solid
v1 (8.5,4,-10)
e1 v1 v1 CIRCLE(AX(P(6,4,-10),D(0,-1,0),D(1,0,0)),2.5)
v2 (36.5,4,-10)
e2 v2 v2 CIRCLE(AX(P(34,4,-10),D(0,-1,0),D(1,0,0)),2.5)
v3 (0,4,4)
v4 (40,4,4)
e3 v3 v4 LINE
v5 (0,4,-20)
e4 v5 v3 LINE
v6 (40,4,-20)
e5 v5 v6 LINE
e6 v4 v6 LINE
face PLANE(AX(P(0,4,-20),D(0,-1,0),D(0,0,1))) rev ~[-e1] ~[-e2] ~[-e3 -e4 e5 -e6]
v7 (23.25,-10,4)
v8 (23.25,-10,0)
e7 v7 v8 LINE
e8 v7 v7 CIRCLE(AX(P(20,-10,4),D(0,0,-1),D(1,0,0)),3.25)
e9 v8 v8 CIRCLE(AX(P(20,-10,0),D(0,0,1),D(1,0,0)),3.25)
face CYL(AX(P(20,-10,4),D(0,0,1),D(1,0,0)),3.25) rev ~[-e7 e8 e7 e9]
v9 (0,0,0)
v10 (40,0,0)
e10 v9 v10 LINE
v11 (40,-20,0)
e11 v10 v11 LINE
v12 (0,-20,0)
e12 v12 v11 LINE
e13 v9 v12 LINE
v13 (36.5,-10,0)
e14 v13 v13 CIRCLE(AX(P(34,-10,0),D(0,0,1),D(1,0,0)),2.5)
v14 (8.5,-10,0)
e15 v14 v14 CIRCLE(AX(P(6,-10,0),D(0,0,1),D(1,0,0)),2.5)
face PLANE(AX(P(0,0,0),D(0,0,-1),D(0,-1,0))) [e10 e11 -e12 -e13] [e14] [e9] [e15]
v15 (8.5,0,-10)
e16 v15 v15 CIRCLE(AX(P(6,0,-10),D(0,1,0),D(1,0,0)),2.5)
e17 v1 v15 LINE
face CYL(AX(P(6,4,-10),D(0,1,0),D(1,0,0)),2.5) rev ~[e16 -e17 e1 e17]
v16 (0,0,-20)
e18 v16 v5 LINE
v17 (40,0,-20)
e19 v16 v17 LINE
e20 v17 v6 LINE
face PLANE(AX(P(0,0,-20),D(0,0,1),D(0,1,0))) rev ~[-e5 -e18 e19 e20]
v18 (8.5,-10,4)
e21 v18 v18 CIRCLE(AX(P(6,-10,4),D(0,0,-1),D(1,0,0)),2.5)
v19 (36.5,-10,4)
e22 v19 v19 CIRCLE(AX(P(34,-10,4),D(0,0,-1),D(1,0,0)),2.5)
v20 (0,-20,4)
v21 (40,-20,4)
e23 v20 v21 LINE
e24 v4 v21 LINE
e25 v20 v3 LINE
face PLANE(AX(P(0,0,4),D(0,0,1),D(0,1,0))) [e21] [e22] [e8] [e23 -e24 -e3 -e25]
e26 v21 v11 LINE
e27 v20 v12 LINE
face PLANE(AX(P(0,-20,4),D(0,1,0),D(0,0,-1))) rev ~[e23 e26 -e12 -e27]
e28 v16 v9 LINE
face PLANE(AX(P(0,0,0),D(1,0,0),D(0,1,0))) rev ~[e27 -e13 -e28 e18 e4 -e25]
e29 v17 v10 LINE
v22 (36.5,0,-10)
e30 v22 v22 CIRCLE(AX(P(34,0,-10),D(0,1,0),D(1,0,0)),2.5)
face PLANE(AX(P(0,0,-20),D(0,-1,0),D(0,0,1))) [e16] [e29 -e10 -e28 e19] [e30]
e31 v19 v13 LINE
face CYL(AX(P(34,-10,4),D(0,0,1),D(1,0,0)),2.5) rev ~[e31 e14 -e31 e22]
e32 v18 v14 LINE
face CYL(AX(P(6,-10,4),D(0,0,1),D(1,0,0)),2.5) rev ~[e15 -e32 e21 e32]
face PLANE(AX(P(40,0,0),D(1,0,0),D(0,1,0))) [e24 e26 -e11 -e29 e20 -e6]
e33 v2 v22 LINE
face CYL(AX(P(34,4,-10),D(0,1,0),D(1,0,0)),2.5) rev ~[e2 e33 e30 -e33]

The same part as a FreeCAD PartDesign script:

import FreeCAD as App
import Part
import Sketcher

V = App.Vector
Q = App.Units.Quantity


def add_polygon(sketch, points):
    """Adds a closed chain of lines whose ends are joined by coincident constraints."""
    first, n = sketch.GeometryCount, len(points)
    for a, b in zip(points, points[1:] + points[:1]):
        sketch.addGeometry(Part.LineSegment(App.Vector(*a, 0), App.Vector(*b, 0)), False)
    for i in range(n):
        sketch.addConstraint(Sketcher.Constraint("Coincident", first + i, 2, first + (i + 1) % n, 1))

doc = App.newDocument("Part")
body = doc.addObject("PartDesign::Body", "Body")

# Sketch on YZ plane
sketch1 = body.newObject("Sketcher::SketchObject", "Sketch")
sketch1.AttachmentSupport = (doc.getObject("YZ_Plane"), [""])
sketch1.MapMode = "FlatFace"
add_polygon(sketch1, [(4, -20), (4, 4), (-20, 4), (-20, 0), (0, 0), (0, -20)])  # lines 0-5
sketch1.addConstraint(Sketcher.Constraint("Vertical", 0))
sketch1.addConstraint(Sketcher.Constraint("Horizontal", 1))
sketch1.addConstraint(Sketcher.Constraint("Vertical", 2))
sketch1.addConstraint(Sketcher.Constraint("Horizontal", 3))
sketch1.addConstraint(Sketcher.Constraint("Vertical", 4))
sketch1.addConstraint(Sketcher.Constraint("Horizontal", 5))
sketch1.addConstraint(Sketcher.Constraint("Coincident", 3, 2, -1, 1))
sketch1.addConstraint(Sketcher.Constraint("Equal", 1, 0))
sketch1.addConstraint(Sketcher.Constraint("Equal", 5, 2))
sketch1.addConstraint(Sketcher.Constraint("DistanceX", 3, 1, 3, 2, Q("20 mm")))
sketch1.addConstraint(Sketcher.Constraint("DistanceX", 5, 1, 5, 2, Q("4 mm")))
pad1 = body.newObject("PartDesign::Pad", "Pad")
pad1.Profile = sketch1
pad1.Length = 40

# Sketch on XY plane
sketch2 = body.newObject("Sketcher::SketchObject", "Sketch001")
sketch2.AttachmentSupport = (doc.getObject("XY_Plane"), [""])
sketch2.MapMode = "FlatFace"
sketch2.AttachmentOffset = App.Placement(V(0, 0, 4), App.Rotation())
sketch2.addGeometry(Part.Circle(V(20, -10, 0), V(0, 0, 1), 3.2), False)
sketch2.addConstraint(Sketcher.Constraint("Diameter", 0, Q("6.5 mm")))
sketch2.addConstraint(Sketcher.Constraint("DistanceY", 0, 3, -1, 1, Q("10 mm")))
sketch2.addConstraint(Sketcher.Constraint("DistanceX", -1, 1, 0, 3, Q("20 mm")))
pocket1 = body.newObject("PartDesign::Pocket", "Pocket")
pocket1.Profile = sketch2
pocket1.Type = "ThroughAll"

# Sketch on XY plane
sketch3 = body.newObject("Sketcher::SketchObject", "Sketch002")
sketch3.AttachmentSupport = (doc.getObject("XY_Plane"), [""])
sketch3.MapMode = "FlatFace"
sketch3.AttachmentOffset = App.Placement(V(0, 0, 4), App.Rotation())
sketch3.addGeometry(Part.Circle(V(34, -10, 0), V(0, 0, 1), 2.5), False)
sketch3.addGeometry(Part.Circle(V(6, -10, 0), V(0, 0, 1), 2.5), False)
sketch3.addConstraint(Sketcher.Constraint("Equal", 0, 1))
sketch3.addConstraint(Sketcher.Constraint("Horizontal", 0, 3, 1, 3))
sketch3.addConstraint(Sketcher.Constraint("Diameter", 0, Q("5 mm")))
sketch3.addConstraint(Sketcher.Constraint("DistanceY", 0, 3, -1, 1, Q("10 mm")))
sketch3.addConstraint(Sketcher.Constraint("DistanceX", -1, 1, 1, 3, Q("6 mm")))
sketch3.addConstraint(Sketcher.Constraint("DistanceX", -1, 1, 0, 3, Q("34 mm")))
pocket2 = body.newObject("PartDesign::Pocket", "Pocket001")
pocket2.Profile = sketch3
pocket2.Length = 10

# Sketch on XZ plane
sketch4 = body.newObject("Sketcher::SketchObject", "Sketch003")
sketch4.AttachmentSupport = (doc.getObject("XZ_Plane"), [""])
sketch4.MapMode = "FlatFace"
sketch4.AttachmentOffset = App.Placement(V(0, 0, -4), App.Rotation())
sketch4.addGeometry(Part.Circle(V(34, -10, 0), V(0, 0, 1), 2.5), False)
sketch4.addGeometry(Part.Circle(V(6, -10, 0), V(0, 0, 1), 2.5), False)
sketch4.addConstraint(Sketcher.Constraint("Equal", 0, 1))
sketch4.addConstraint(Sketcher.Constraint("Horizontal", 0, 3, 1, 3))
sketch4.addConstraint(Sketcher.Constraint("Diameter", 0, Q("5 mm")))
sketch4.addConstraint(Sketcher.Constraint("DistanceY", 0, 3, -1, 1, Q("10 mm")))
sketch4.addConstraint(Sketcher.Constraint("DistanceX", -1, 1, 1, 3, Q("6 mm")))
sketch4.addConstraint(Sketcher.Constraint("DistanceX", -1, 1, 0, 3, Q("34 mm")))
pocket3 = body.newObject("PartDesign::Pocket", "Pocket002")
pocket3.Profile = sketch4
pocket3.Length = 10
pocket3.Reversed = True

doc.recompute()
